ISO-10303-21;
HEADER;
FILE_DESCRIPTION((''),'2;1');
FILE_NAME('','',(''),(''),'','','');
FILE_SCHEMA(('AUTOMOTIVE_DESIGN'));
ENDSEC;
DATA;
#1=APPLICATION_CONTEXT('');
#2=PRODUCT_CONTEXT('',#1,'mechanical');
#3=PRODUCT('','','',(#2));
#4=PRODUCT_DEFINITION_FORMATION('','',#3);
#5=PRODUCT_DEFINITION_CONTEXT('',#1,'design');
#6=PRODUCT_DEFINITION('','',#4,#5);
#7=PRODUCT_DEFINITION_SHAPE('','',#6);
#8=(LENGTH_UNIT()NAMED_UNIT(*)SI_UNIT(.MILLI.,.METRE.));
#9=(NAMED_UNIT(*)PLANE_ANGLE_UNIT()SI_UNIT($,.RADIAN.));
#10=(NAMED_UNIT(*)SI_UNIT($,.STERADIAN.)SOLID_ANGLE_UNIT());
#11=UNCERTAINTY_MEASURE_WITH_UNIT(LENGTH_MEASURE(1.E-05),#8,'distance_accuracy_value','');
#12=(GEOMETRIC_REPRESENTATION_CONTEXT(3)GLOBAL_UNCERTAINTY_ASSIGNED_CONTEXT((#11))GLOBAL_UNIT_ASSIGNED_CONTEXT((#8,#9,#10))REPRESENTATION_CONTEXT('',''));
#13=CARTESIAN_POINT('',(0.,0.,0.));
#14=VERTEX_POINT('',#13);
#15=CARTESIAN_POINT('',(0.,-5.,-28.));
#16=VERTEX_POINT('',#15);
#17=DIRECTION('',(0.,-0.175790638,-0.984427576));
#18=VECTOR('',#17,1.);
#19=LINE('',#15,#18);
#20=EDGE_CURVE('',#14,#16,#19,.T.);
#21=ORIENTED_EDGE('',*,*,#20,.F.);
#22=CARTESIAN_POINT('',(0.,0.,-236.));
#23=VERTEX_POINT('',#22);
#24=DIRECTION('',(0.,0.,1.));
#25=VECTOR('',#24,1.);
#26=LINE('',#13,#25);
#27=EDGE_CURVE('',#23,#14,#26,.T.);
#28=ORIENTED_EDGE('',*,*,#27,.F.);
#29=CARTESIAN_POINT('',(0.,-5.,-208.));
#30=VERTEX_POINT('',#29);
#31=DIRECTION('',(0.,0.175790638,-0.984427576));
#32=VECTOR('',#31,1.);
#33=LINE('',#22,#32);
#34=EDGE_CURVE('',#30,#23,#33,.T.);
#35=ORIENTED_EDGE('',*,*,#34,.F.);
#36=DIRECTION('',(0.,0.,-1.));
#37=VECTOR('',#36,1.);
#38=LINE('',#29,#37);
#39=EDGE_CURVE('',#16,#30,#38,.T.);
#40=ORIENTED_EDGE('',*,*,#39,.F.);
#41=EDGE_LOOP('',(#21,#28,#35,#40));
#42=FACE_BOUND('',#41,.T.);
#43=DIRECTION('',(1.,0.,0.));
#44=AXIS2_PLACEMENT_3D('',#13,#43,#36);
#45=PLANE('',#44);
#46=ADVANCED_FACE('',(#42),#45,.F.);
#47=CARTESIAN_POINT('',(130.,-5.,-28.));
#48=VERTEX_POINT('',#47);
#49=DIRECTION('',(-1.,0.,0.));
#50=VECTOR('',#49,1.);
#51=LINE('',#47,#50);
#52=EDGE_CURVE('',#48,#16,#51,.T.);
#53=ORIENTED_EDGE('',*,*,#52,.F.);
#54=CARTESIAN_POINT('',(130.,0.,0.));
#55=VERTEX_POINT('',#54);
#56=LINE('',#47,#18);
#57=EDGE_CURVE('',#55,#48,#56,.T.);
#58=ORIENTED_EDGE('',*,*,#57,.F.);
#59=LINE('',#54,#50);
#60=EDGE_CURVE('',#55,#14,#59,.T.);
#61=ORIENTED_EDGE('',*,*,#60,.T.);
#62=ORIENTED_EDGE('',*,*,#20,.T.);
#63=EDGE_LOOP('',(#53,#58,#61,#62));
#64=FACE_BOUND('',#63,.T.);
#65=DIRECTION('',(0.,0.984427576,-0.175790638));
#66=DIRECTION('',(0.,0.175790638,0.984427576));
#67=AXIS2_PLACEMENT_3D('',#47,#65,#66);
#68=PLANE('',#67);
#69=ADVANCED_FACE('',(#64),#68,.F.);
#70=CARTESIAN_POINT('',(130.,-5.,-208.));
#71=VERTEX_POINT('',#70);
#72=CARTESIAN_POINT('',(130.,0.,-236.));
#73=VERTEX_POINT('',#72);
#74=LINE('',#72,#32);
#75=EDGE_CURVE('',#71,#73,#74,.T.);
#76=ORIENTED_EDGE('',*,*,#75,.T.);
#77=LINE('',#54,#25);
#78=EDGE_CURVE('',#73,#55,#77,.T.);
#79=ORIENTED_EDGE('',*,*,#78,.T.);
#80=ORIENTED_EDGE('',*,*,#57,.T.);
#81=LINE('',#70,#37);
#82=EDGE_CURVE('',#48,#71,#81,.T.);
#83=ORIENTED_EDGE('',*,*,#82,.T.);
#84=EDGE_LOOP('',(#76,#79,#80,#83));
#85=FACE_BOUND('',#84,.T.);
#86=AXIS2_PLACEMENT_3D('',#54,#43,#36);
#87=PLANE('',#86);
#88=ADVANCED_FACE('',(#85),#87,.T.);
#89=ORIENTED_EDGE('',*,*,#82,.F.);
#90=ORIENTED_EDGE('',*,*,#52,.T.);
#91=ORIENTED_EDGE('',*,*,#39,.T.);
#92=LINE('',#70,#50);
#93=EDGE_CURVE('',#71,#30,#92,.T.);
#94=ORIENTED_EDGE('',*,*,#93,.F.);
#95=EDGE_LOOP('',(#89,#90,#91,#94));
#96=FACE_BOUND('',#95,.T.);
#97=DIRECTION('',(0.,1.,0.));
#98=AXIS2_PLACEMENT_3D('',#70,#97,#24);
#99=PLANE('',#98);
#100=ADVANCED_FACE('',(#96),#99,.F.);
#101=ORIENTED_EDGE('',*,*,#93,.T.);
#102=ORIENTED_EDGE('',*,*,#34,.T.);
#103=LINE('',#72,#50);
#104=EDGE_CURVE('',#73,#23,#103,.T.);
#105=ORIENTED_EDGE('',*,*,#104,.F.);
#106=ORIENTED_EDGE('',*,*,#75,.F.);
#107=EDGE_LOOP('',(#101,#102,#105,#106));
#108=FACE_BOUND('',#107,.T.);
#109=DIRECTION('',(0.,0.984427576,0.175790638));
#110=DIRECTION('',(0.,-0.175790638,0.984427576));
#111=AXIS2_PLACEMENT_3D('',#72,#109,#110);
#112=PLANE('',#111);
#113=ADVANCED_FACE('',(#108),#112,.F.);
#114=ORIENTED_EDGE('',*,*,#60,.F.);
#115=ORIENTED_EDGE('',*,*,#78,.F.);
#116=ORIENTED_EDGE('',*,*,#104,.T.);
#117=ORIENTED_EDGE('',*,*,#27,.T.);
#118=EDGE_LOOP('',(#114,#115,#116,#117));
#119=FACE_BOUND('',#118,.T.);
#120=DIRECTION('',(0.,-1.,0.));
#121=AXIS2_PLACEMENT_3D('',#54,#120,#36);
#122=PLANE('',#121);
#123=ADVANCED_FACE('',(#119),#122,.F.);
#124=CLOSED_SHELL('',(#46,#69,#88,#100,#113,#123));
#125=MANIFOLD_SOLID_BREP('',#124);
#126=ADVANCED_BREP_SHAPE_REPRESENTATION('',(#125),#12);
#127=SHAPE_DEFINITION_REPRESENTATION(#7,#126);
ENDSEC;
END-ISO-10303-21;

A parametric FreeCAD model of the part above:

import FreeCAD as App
import Part
import Sketcher
from FreeCAD import Vector
Q = App.Units.Quantity

doc = App.newDocument("Part")
params = doc.addObject("Spreadsheet::Sheet", "Params")
for row, (alias, value) in enumerate([
    ("sketch1_height", "236 mm"),
    ("sketch1_height2", "180 mm"),
    ("pad1_length", "130 mm"),
], start=1):
    params.set(f"A{row}", alias)
    params.set(f"B{row}", "=" + value)
    params.setAlias(f"B{row}", alias)

body = doc.addObject("PartDesign::Body", "Body")

# Sketch on YZ plane
sketch1 = doc.addObject("Sketcher::SketchObject", "Sketch")
body.addObject(sketch1)
sketch1.AttachmentSupport = (doc.YZ_Plane, [""])
sketch1.MapMode = "FlatFace"
sketch1.addGeometry([
    Part.LineSegment(Vector(0, -236, 0), Vector(0, 0, 0)),
    Part.LineSegment(Vector(0, 0, 0), Vector(-5, -28, 0)),
    Part.LineSegment(Vector(-5, -28, 0), Vector(-5, -208, 0)),
    Part.LineSegment(Vector(-5, -208, 0), Vector(0, -236, 0)),
], False)
sketch1.addConstraint([
    Sketcher.Constraint("Coincident", 0, 2, 1, 1),
    Sketcher.Constraint("Coincident", 1, 2, 2, 1),
    Sketcher.Constraint("Coincident", 2, 2, 3, 1),
    Sketcher.Constraint("Coincident", 3, 2, 0, 1),
    Sketcher.Constraint("Vertical", 0),
    Sketcher.Constraint("Vertical", 2),
    Sketcher.Constraint("Coincident", 0, 2, -1, 1),
    Sketcher.Constraint("Equal", 1, 3),
    Sketcher.Constraint("DistanceY", 0, 1, 0, 2, Q("236 mm")),
    Sketcher.Constraint("DistanceY", 2, 2, 2, 1, Q("180 mm")),
    Sketcher.Constraint("DistanceX", 1, 2, -1, 1, Q("5 mm")),
])
sketch1.setExpression("Constraints[8]", "Params.sketch1_height")
sketch1.setExpression("Constraints[9]", "Params.sketch1_height2")
pad1 = doc.addObject("PartDesign::Pad", "Pad")
body.addObject(pad1)
pad1.Profile = sketch1
pad1.setExpression("Length", "Params.pad1_length")

doc.recompute()
